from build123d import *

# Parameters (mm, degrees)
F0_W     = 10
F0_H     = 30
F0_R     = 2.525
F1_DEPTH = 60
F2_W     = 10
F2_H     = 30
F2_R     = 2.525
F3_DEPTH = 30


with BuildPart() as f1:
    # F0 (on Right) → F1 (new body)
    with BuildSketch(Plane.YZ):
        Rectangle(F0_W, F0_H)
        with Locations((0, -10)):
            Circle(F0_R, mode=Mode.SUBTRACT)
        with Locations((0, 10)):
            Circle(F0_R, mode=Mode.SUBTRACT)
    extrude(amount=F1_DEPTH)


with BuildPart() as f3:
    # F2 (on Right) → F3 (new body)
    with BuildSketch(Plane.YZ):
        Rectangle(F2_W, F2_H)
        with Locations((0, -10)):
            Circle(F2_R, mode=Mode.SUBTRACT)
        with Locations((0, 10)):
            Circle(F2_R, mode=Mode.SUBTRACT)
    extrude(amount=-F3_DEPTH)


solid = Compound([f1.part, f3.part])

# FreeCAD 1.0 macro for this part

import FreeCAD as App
import Part
import Sketcher
Q = App.Units.Quantity

doc = App.newDocument("Part")
body = doc.addObject("PartDesign::Body", "Body")

# Sketch on YZ plane
sketch1 = body.newObject("Sketcher::SketchObject", "Sketch")
sketch1.AttachmentSupport = (doc.getObject("YZ_Plane"), [""])
sketch1.MapMode = "FlatFace"
sketch1.addGeometry(Part.LineSegment(App.Vector(-5, 15, 0), App.Vector(-5, -15, 0)), False)
sketch1.addGeometry(Part.LineSegment(App.Vector(-5, -15, 0), App.Vector(5, -15, 0)), False)
sketch1.addGeometry(Part.LineSegment(App.Vector(5, -15, 0), App.Vector(5, 15, 0)), False)
sketch1.addGeometry(Part.LineSegment(App.Vector(5, 15, 0), App.Vector(-5, 15, 0)), False)
sketch1.addGeometry(Part.Circle(App.Vector(0, -10, 0), App.Vector(0, 0, 1), 2.5), False)
sketch1.addGeometry(Part.Circle(App.Vector(0, 10, 0), App.Vector(0, 0, 1), 2.5), False)
sketch1.addConstraint(Sketcher.Constraint("Coincident", 0, 2, 1, 1))
sketch1.addConstraint(Sketcher.Constraint("Coincident", 1, 2, 2, 1))
sketch1.addConstraint(Sketcher.Constraint("Coincident", 2, 2, 3, 1))
sketch1.addConstraint(Sketcher.Constraint("Coincident", 3, 2, 0, 1))
sketch1.addConstraint(Sketcher.Constraint("Vertical", 0))
sketch1.addConstraint(Sketcher.Constraint("Horizontal", 1))
sketch1.addConstraint(Sketcher.Constraint("Vertical", 2))
sketch1.addConstraint(Sketcher.Constraint("Horizontal", 3))
sketch1.addConstraint(Sketcher.Constraint("Equal", 4, 5))
sketch1.addConstraint(Sketcher.Constraint("Symmetric", 4, 3, 5, 3, -1, 1))
sketch1.addConstraint(Sketcher.Constraint("Symmetric", 0, 2, 2, 2, -1, 1))
sketch1.addConstraint(Sketcher.Constraint("PointOnObject", 4, 3, -2))
sketch1.addConstraint(Sketcher.Constraint("Diameter", 4, Q("5.05 mm")))
sketch1.addConstraint(Sketcher.Constraint("DistanceX", 1, 1, 1, 2, Q("10 mm")))
sketch1.addConstraint(Sketcher.Constraint("DistanceY", 0, 2, 0, 1, Q("30 mm")))
sketch1.addConstraint(Sketcher.Constraint("DistanceY", 4, 3, -1, 1, Q("10 mm")))
pad1 = body.newObject("PartDesign::Pad", "Pad")
pad1.Profile = sketch1
pad1.Length = 60
body2 = doc.addObject("PartDesign::Body", "Body001")

# Sketch on YZ plane
sketch2 = body2.newObject("Sketcher::SketchObject", "Sketch001")
sketch2.AttachmentSupport = (doc.getObject("YZ_Plane001"), [""])
sketch2.MapMode = "FlatFace"
sketch2.addGeometry(Part.LineSegment(App.Vector(-5, 15, 0), App.Vector(-5, -15, 0)), False)
sketch2.addGeometry(Part.LineSegment(App.Vector(-5, -15, 0), App.Vector(5, -15, 0)), False)
sketch2.addGeometry(Part.LineSegment(App.Vector(5, -15, 0), App.Vector(5, 15, 0)), False)
sketch2.addGeometry(Part.LineSegment(App.Vector(5, 15, 0), App.Vector(-5, 15, 0)), False)
sketch2.addGeometry(Part.Circle(App.Vector(0, -10, 0), App.Vector(0, 0, 1), 2.5), False)
sketch2.addGeometry(Part.Circle(App.Vector(0, 10, 0), App.Vector(0, 0, 1), 2.5), False)
sketch2.addConstraint(Sketcher.Constraint("Coincident", 0, 2, 1, 1))
sketch2.addConstraint(Sketcher.Constraint("Coincident", 1, 2, 2, 1))
sketch2.addConstraint(Sketcher.Constraint("Coincident", 2, 2, 3, 1))
sketch2.addConstraint(Sketcher.Constraint("Coincident", 3, 2, 0, 1))
sketch2.addConstraint(Sketcher.Constraint("Vertical", 0))
sketch2.addConstraint(Sketcher.Constraint("Horizontal", 1))
sketch2.addConstraint(Sketcher.Constraint("Vertical", 2))
sketch2.addConstraint(Sketcher.Constraint("Horizontal", 3))
sketch2.addConstraint(Sketcher.Constraint("Equal", 4, 5))
sketch2.addConstraint(Sketcher.Constraint("Symmetric", 4, 3, 5, 3, -1, 1))
sketch2.addConstraint(Sketcher.Constraint("Symmetric", 0, 2, 2, 2, -1, 1))
sketch2.addConstraint(Sketcher.Constraint("PointOnObject", 4, 3, -2))
sketch2.addConstraint(Sketcher.Constraint("Diameter", 4, Q("5.05 mm")))
sketch2.addConstraint(Sketcher.Constraint("DistanceX", 1, 1, 1, 2, Q("10 mm")))
sketch2.addConstraint(Sketcher.Constraint("DistanceY", 0, 2, 0, 1, Q("30 mm")))
sketch2.addConstraint(Sketcher.Constraint("DistanceY", 4, 3, -1, 1, Q("10 mm")))
pad2 = body2.newObject("PartDesign::Pad", "Pad001")
pad2.Profile = sketch2
pad2.Length = 30
pad2.Reversed = True

doc.recompute()
